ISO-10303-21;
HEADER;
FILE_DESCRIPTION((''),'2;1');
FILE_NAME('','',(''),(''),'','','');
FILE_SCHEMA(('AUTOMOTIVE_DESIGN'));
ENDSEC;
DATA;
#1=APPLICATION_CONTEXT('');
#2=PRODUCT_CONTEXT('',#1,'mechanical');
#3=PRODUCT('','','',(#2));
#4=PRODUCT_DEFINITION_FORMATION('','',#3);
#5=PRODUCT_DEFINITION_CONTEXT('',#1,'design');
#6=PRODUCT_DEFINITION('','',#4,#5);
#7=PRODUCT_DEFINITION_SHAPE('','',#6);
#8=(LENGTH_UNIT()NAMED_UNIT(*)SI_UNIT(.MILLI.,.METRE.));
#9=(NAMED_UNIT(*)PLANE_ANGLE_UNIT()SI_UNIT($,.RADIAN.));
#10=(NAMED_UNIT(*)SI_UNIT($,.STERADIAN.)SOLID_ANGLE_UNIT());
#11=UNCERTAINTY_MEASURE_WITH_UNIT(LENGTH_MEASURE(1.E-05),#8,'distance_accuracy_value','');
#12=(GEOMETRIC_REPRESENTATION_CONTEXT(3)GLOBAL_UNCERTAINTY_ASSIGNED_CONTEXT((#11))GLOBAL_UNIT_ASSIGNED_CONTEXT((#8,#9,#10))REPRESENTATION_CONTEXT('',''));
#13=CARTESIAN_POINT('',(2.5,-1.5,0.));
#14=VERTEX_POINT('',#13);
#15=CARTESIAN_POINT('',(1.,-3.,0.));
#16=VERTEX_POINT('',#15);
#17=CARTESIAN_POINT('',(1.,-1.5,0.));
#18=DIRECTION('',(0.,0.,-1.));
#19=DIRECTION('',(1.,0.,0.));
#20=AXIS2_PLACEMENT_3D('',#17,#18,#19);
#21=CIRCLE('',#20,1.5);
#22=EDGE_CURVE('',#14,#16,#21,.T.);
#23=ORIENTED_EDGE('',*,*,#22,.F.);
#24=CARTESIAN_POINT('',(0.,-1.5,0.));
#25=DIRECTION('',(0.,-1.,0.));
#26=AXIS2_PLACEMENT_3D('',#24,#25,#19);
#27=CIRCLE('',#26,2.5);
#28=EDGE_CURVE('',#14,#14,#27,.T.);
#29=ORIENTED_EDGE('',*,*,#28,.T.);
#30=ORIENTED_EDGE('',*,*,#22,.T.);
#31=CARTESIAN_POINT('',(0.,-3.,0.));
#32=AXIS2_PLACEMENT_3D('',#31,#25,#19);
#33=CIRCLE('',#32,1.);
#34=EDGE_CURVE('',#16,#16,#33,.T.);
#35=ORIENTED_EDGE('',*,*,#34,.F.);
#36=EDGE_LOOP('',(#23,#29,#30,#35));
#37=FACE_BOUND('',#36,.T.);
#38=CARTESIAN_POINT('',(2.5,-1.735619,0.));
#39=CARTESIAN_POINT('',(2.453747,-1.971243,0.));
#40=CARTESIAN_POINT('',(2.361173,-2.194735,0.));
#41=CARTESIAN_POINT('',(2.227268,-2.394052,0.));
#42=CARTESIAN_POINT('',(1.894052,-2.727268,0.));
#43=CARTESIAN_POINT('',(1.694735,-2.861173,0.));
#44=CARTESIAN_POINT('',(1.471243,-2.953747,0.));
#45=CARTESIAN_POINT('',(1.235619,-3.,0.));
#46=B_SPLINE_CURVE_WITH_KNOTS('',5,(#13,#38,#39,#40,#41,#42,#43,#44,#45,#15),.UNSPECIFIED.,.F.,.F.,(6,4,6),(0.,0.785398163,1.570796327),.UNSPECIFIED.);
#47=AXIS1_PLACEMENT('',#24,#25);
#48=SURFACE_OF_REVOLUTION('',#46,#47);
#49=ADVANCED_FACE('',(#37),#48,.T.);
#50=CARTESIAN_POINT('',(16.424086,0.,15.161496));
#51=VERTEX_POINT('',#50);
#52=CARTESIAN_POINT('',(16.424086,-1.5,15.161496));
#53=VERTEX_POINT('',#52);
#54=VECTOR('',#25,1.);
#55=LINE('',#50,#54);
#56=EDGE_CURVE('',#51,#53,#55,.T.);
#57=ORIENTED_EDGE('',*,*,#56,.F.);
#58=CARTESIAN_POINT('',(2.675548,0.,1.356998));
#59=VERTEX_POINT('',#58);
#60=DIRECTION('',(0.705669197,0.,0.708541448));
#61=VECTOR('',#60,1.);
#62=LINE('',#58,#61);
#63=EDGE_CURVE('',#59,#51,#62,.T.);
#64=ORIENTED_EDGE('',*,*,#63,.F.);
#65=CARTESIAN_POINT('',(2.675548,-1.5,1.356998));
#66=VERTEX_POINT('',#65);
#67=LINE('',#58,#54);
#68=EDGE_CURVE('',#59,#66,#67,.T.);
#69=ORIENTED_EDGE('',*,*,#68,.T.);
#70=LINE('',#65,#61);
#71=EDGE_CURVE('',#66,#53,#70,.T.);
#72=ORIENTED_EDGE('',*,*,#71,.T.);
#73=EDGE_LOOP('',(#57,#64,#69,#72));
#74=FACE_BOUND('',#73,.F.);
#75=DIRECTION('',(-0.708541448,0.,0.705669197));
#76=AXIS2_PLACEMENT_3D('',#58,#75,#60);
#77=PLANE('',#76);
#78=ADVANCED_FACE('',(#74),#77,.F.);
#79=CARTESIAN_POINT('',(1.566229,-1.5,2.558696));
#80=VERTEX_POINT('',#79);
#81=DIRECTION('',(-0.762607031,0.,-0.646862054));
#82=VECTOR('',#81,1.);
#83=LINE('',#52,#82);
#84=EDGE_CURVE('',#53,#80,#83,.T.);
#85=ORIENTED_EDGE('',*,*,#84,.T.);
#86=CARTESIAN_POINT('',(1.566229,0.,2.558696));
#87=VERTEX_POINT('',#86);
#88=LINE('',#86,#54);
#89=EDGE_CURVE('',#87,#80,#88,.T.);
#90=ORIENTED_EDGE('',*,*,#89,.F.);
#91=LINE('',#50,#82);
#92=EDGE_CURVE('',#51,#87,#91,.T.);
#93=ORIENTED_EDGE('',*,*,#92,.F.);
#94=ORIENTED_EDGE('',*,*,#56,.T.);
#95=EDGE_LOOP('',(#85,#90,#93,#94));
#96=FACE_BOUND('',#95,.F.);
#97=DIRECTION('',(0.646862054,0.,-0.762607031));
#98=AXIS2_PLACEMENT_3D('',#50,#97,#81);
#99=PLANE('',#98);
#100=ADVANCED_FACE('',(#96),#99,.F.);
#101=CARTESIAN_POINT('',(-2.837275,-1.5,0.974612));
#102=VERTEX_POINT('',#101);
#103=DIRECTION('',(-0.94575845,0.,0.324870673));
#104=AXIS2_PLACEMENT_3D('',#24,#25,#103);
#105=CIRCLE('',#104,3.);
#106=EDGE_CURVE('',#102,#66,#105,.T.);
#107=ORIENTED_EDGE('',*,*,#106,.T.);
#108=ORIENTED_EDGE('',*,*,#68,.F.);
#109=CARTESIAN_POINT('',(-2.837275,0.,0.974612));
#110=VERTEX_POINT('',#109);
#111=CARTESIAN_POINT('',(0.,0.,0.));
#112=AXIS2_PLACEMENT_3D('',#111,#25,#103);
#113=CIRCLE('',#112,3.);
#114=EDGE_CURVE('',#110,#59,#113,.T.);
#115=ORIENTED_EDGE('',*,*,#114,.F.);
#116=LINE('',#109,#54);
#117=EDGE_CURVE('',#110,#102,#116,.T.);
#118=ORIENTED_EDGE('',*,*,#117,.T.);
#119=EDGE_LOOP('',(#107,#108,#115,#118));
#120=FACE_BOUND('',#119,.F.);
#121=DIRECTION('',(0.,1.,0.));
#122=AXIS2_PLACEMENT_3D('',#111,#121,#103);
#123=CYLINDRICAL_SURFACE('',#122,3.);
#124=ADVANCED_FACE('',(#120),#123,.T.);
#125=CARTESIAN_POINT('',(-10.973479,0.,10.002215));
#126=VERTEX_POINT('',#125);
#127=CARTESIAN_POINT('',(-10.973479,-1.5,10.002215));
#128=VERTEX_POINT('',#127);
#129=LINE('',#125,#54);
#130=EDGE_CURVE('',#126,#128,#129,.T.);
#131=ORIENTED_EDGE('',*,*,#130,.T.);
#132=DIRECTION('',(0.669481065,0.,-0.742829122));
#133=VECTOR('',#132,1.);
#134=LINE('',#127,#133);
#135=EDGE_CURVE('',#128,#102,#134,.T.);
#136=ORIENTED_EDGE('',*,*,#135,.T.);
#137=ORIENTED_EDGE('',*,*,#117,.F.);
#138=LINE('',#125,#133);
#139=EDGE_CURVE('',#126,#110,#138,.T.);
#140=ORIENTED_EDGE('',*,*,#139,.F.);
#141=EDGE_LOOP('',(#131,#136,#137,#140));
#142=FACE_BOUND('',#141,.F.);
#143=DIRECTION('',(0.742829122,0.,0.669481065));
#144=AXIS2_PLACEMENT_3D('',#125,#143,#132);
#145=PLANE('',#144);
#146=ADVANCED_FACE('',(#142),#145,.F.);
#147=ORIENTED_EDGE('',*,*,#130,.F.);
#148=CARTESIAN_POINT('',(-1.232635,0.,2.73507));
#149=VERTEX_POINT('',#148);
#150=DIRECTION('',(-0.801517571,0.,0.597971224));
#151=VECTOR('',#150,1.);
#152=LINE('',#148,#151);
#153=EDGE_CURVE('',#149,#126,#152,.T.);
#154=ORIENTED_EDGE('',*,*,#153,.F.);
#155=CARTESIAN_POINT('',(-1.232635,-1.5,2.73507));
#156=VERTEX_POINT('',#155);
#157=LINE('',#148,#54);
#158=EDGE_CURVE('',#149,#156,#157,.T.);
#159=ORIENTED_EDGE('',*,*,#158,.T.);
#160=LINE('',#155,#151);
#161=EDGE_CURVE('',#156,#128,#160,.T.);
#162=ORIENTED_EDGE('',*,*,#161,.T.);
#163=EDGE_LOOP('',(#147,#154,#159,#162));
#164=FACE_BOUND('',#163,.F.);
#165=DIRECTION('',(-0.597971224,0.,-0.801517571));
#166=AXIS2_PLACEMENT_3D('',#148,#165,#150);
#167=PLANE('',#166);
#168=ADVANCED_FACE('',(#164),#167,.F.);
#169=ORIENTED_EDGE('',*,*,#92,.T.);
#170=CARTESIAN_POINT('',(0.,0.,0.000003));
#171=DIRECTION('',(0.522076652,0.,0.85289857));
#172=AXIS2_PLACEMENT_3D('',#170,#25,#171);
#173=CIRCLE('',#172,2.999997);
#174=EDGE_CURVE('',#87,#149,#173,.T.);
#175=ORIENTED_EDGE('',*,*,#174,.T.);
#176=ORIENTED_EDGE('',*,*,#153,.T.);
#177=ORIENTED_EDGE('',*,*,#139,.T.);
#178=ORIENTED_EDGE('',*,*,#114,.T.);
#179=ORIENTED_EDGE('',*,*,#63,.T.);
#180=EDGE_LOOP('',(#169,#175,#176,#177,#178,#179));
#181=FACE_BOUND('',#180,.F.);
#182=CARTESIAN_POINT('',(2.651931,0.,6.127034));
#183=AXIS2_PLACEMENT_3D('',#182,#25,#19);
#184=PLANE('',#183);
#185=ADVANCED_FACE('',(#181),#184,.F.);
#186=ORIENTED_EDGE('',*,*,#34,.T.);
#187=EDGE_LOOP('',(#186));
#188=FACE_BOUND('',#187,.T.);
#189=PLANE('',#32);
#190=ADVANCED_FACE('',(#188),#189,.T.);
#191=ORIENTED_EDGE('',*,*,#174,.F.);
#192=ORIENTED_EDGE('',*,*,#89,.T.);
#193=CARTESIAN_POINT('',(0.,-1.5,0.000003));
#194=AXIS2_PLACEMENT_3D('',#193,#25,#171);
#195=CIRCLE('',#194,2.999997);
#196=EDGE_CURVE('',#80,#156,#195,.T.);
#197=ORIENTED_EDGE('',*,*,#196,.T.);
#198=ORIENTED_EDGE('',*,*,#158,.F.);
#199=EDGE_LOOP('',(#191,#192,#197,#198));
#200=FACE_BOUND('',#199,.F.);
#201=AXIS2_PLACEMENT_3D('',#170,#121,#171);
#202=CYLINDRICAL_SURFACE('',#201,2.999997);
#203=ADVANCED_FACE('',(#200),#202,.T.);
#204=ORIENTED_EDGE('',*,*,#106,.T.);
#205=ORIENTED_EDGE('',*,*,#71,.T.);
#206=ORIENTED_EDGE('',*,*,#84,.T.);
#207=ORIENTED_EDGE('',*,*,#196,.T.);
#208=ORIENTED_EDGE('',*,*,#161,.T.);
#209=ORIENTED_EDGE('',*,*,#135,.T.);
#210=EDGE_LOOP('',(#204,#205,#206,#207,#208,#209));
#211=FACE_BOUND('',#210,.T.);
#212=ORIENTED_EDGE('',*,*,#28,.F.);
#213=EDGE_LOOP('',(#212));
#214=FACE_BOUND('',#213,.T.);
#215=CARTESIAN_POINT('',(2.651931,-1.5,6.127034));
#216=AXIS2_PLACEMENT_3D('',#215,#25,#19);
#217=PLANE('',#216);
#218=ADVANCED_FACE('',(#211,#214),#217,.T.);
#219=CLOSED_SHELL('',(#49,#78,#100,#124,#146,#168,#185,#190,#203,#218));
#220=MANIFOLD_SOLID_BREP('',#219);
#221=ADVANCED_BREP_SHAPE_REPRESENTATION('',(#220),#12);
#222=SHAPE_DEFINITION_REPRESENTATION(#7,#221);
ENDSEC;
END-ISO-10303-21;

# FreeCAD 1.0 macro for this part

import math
import FreeCAD as App
import Part
import Sketcher


def edges_at(feature, points):
    """Names of the edges that pass closest to the given points."""
    edges = feature.Shape.Edges
    near = lambda p: min(range(len(edges)), key=lambda i: edges[i].distToShape(Part.Vertex(*p))[0])
    return sorted({f"Edge{near(p) + 1}" for p in points})

doc = App.newDocument("Part")
body = doc.addObject("PartDesign::Body", "Body")

# Sketch on XZ plane
sketch1 = body.newObject("Sketcher::SketchObject", "Sketch")
sketch1.AttachmentSupport = (doc.getObject("XZ_Plane"), [""])
sketch1.MapMode = "FlatFace"
sketch1.addGeometry(Part.Circle(App.Vector(0, 0, 0), App.Vector(0, 0, 1), 2.5), False)
sketch1.addConstraint([
    Sketcher.Constraint("Coincident", 0, 3, -1, 1),
    Sketcher.Constraint("Diameter", 0, 5.0),
])
pad1 = body.newObject("PartDesign::Pad", "Pad")
pad1.Profile = sketch1
pad1.Length = 3
doc.recompute()

fillet = body.newObject("PartDesign::Fillet", "Fillet")
fillet.Base = (pad1, edges_at(pad1, [(-2.5, -3, 0)]))
fillet.Radius = 1.5

# Sketch on XZ plane
sketch2 = body.newObject("Sketcher::SketchObject", "Sketch001")
sketch2.AttachmentSupport = (doc.getObject("XZ_Plane"), [""])
sketch2.MapMode = "FlatFace"
sketch2.addGeometry([
    Part.LineSegment(App.Vector(-11, 10, 0), App.Vector(-2.8, 1, 0)),  # 0
    Part.ArcOfCircle(Part.Circle(App.Vector(0, 0, 0), App.Vector(0, 0, 1), 3), math.radians(161), math.radians(387)),  # 1
    Part.LineSegment(App.Vector(2.7, 1.4, 0), App.Vector(16.4, 15.2, 0)),  # 2
    Part.LineSegment(App.Vector(16.4, 15.2, 0), App.Vector(1.6, 2.6, 0)),  # 3
    Part.ArcOfCircle(Part.Circle(App.Vector(0, 0, 0), App.Vector(0, 0, 1), 3), math.radians(59), math.radians(114)),  # 4
    Part.LineSegment(App.Vector(-1.2, 2.7, 0), App.Vector(-11, 10, 0)),  # 5
], False)
sketch2.addConstraint([
    Sketcher.Constraint("Coincident", 0, 2, 1, 1),
    Sketcher.Constraint("Coincident", 1, 2, 2, 1),
    Sketcher.Constraint("Coincident", 2, 2, 3, 1),
    Sketcher.Constraint("Coincident", 3, 2, 4, 1),
    Sketcher.Constraint("Coincident", 4, 2, 5, 1),
    Sketcher.Constraint("Coincident", 5, 2, 0, 1),
    Sketcher.Constraint("Coincident", 1, 3, -1, 1),
    Sketcher.Constraint("Coincident", 4, 3, -1, 1),
    Sketcher.Constraint("Equal", 2, 3),
    Sketcher.Constraint("Equal", 0, 5),
    Sketcher.Constraint("Radius", 1, 3.0),
    Sketcher.Constraint("Distance", 0, 12.153001),
    Sketcher.Constraint("Radius", 4, 2.999997),
    Sketcher.Constraint("DistanceY", 1, 2, 2, 2, 13.804498),
    Sketcher.Constraint("DistanceY", 1, 2, 3, 2, 1.201698),
    Sketcher.Constraint("Distance", 2, 19.482979),
    Sketcher.Constraint("DistanceY", -1, 1, 4, 2, 2.73507),
    Sketcher.Constraint("DistanceX", 5, 2, -1, 1, 10.973479),
])
pad2 = body.newObject("PartDesign::Pad", "Pad001")
pad2.Profile = sketch2
pad2.Length = 1.5

doc.recompute()
